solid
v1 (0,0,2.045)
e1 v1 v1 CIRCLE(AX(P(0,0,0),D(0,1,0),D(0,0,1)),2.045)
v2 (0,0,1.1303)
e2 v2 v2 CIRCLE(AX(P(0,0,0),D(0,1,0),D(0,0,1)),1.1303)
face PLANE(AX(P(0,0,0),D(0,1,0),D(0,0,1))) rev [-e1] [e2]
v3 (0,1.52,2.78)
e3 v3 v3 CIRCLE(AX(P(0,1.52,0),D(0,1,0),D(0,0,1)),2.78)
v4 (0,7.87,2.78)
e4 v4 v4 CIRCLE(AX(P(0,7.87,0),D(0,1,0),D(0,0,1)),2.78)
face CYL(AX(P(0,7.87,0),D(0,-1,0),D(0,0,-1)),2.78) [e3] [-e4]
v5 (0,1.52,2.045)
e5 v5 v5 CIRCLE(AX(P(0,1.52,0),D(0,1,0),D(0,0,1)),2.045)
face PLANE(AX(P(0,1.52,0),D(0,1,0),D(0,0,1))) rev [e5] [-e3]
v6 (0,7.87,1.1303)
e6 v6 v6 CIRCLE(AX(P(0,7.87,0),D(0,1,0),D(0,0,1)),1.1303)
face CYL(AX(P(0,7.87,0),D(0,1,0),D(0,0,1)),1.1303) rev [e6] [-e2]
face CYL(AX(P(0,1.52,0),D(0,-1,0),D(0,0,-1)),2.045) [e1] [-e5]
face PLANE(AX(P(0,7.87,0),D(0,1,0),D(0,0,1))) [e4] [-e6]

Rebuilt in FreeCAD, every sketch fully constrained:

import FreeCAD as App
import Part
import Sketcher

V = App.Vector
Q = App.Units.Quantity

doc = App.newDocument("Part")
body = doc.addObject("PartDesign::Body", "Body")

# Sketch on XZ plane
sketch1 = doc.addObject("Sketcher::SketchObject", "Sketch")
body.addObject(sketch1)
sketch1.AttachmentSupport = (doc.XZ_Plane, [""])
sketch1.MapMode = "FlatFace"
sketch1.addGeometry(Part.Circle(V(0, 0, 0), V(0, 0, 1), 2.045), False)
sketch1.addConstraint([
    Sketcher.Constraint("Coincident", 0, 3, -1, 1),
    Sketcher.Constraint("Diameter", 0, Q("4.09 mm")),
])
pad1 = doc.addObject("PartDesign::Pad", "Pad")
body.addObject(pad1)
pad1.Profile = sketch1
pad1.Length = 1.52
pad1.Reversed = True

# Sketch on XZ plane
sketch2 = doc.addObject("Sketcher::SketchObject", "Sketch001")
body.addObject(sketch2)
sketch2.AttachmentSupport = (doc.XZ_Plane, [""])
sketch2.MapMode = "FlatFace"
sketch2.AttachmentOffset = App.Placement(V(0, 0, -1.52), App.Rotation())
sketch2.addGeometry(Part.Circle(V(0, 0, 0), V(0, 0, 1), 2.78), False)
sketch2.addConstraint([
    Sketcher.Constraint("Coincident", 0, 3, -1, 1),
    Sketcher.Constraint("Diameter", 0, Q("5.56 mm")),
])
pad2 = doc.addObject("PartDesign::Pad", "Pad001")
body.addObject(pad2)
pad2.Profile = sketch2
pad2.Length = Q("0.25 in")
pad2.Reversed = True

# Sketch on XZ plane
sketch3 = doc.addObject("Sketcher::SketchObject", "Sketch002")
body.addObject(sketch3)
sketch3.AttachmentSupport = (doc.XZ_Plane, [""])
sketch3.MapMode = "FlatFace"
sketch3.AttachmentOffset = App.Placement(V(0, 0, -7.87), App.Rotation())
sketch3.addGeometry(Part.Circle(V(0, 0, 0), V(0, 0, 1), 1.1303), False)
sketch3.addConstraint([
    Sketcher.Constraint("Coincident", 0, 3, -1, 1),
    Sketcher.Constraint("Diameter", 0, Q("0.089 in")),
])
doc.recompute()
hole = doc.addObject("PartDesign::Hole", "Hole")
body.addObject(hole)
hole.Profile = sketch3
hole.ThreadType = "None"
hole.Diameter = Q("0.089 in")
hole.DepthType = "ThroughAll"
hole.Reversed = True

doc.recompute()
